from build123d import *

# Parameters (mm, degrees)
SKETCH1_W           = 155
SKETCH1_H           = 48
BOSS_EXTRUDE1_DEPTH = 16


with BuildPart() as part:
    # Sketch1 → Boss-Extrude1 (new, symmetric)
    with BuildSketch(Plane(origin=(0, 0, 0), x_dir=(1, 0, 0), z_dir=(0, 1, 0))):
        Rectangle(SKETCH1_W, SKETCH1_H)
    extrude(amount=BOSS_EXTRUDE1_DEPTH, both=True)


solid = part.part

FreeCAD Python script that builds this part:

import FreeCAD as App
import Part
import Sketcher

V = App.Vector


def add_polygon(sketch, points):
    """Adds a closed chain of lines whose ends are joined by coincident constraints."""
    first, n = sketch.GeometryCount, len(points)
    for a, b in zip(points, points[1:] + points[:1]):
        sketch.addGeometry(Part.LineSegment(App.Vector(*a, 0), App.Vector(*b, 0)), False)
    for i in range(n):
        sketch.addConstraint(Sketcher.Constraint("Coincident", first + i, 2, first + (i + 1) % n, 1))

doc = App.newDocument("Part")
params = doc.addObject("Spreadsheet::Sheet", "Params")
for row, (alias, value) in enumerate([
    ("sketch1_width", "155 mm"),
    ("sketch1_height", "48 mm"),
    ("pad1_length", "32 mm"),
], start=1):
    params.set(f"A{row}", alias)
    params.set(f"B{row}", "=" + value)
    params.setAlias(f"B{row}", alias)

body = doc.addObject("PartDesign::Body", "Body")

# Sketch on XZ plane
sketch1 = body.newObject("Sketcher::SketchObject", "Sketch")
sketch1.AttachmentSupport = (doc.getObject("XZ_Plane"), [""])
sketch1.MapMode = "FlatFace"
add_polygon(sketch1, [(-78, -24), (-78, 24), (78, 24), (78, -24)])  # lines 0-3
sketch1.addConstraint([
    Sketcher.Constraint("Vertical", 0),
    Sketcher.Constraint("Horizontal", 1),
    Sketcher.Constraint("Vertical", 2),
    Sketcher.Constraint("Horizontal", 3),
    Sketcher.Constraint("Symmetric", 0, 2, 2, 2, -1, 1),
    Sketcher.Constraint("DistanceX", 1, 1, 1, 2, 155.0),
    Sketcher.Constraint("DistanceY", 0, 1, 0, 2, 48.0),
])
sketch1.setExpression("Constraints[9]", "Params.sketch1_width")
sketch1.setExpression("Constraints[10]", "Params.sketch1_height")
pad1 = body.newObject("PartDesign::Pad", "Pad")
pad1.Profile = sketch1
pad1.setExpression("Length", "Params.pad1_length")
pad1.Midplane = True

doc.recompute()
